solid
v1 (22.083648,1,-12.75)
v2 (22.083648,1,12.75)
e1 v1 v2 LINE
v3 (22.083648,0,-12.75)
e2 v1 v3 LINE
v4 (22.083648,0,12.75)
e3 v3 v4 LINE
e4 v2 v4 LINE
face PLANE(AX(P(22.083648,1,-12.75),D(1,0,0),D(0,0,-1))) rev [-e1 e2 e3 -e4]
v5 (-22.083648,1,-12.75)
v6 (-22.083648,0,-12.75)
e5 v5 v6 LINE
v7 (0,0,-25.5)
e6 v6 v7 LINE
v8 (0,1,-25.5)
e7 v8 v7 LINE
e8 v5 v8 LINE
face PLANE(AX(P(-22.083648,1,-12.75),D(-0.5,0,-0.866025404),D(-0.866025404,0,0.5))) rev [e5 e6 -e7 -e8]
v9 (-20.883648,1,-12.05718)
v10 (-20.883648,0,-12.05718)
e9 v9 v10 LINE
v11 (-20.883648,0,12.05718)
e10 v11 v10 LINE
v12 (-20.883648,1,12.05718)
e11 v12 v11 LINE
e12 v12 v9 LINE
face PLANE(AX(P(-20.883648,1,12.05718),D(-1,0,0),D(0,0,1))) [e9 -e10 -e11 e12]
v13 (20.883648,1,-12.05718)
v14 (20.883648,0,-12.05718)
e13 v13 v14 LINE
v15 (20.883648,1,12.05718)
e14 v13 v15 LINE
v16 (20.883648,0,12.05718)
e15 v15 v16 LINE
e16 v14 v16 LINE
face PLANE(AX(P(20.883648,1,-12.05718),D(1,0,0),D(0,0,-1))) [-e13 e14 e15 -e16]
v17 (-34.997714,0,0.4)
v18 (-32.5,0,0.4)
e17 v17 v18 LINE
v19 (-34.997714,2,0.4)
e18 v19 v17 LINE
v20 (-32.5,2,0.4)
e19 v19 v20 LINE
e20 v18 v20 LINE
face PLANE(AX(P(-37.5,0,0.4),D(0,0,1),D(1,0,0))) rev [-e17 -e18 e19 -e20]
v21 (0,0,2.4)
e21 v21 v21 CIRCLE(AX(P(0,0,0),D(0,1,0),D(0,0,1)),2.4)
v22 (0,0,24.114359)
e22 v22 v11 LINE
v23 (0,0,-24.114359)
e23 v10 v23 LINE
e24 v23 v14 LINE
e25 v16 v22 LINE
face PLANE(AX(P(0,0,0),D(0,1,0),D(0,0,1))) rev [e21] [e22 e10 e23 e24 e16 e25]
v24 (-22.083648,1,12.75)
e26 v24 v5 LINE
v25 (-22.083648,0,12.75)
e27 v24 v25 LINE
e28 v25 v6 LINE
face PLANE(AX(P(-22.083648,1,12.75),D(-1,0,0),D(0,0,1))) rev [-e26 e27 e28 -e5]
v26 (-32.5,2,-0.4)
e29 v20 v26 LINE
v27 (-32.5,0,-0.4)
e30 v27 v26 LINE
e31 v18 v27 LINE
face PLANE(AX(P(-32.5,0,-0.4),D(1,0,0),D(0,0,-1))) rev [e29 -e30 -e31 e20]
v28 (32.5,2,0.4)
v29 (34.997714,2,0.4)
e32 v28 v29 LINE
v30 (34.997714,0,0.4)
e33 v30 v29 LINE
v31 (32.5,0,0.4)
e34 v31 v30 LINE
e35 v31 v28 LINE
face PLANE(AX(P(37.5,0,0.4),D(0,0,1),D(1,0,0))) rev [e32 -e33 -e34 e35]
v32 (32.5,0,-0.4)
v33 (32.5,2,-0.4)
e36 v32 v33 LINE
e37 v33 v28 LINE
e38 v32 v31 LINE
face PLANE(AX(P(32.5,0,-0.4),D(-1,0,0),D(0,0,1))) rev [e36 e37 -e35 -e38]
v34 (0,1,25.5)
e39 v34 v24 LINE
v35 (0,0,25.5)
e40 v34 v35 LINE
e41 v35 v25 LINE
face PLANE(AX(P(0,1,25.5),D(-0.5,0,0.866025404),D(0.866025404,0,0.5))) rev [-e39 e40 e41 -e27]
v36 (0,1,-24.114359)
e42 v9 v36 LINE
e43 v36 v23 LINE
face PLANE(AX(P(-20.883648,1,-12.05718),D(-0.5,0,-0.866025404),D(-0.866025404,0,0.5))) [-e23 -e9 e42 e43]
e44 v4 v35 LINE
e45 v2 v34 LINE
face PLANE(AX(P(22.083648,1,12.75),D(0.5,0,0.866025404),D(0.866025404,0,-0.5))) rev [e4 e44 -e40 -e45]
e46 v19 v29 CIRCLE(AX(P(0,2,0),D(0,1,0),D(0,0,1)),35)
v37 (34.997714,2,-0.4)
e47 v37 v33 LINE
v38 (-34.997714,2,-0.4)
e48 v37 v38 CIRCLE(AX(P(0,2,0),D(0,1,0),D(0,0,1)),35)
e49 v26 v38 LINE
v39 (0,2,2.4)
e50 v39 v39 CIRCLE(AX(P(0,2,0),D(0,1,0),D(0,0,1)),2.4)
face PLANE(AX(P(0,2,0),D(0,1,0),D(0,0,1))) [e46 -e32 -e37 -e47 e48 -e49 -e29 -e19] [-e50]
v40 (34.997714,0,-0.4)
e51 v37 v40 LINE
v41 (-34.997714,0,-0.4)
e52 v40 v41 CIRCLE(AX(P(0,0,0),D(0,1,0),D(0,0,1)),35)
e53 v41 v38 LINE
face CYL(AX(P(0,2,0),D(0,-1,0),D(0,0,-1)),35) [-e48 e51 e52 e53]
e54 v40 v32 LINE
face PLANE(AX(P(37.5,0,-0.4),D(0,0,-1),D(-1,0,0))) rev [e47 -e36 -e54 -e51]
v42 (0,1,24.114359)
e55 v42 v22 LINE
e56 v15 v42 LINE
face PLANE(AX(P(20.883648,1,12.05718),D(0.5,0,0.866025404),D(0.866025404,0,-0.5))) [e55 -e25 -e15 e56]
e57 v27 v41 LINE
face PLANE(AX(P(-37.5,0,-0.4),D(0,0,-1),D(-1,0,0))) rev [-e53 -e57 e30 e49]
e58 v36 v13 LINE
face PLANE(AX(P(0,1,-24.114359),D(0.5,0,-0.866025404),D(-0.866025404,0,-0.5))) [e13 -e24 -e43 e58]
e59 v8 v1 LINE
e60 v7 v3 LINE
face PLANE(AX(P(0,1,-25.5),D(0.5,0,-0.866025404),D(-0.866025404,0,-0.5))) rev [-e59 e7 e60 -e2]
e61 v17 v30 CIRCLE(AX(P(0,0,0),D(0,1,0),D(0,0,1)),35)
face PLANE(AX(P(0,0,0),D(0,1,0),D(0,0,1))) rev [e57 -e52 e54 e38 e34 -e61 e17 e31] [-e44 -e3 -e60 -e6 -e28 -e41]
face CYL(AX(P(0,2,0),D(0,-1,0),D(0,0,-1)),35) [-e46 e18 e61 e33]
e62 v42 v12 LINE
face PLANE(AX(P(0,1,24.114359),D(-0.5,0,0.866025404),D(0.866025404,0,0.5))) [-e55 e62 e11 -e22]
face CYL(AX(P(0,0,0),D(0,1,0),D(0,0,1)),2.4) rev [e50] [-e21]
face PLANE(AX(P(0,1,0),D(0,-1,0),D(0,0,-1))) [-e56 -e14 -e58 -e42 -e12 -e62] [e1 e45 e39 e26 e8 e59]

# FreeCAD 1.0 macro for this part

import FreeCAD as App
import Part
import Sketcher

V = App.Vector
Q = App.Units.Quantity

doc = App.newDocument("Part")
body = doc.addObject("PartDesign::Body", "Body")

# Sketch on XZ plane
sketch1 = body.newObject("Sketcher::SketchObject", "Sketch")
sketch1.AttachmentSupport = (doc.getObject("XZ_Plane"), [""])
sketch1.MapMode = "FlatFace"
sketch1.addGeometry(Part.Circle(V(0, 0, 0), V(0, 0, 1), 35), False)
sketch1.addConstraint(Sketcher.Constraint("Coincident", 0, 3, -1, 1))
sketch1.addConstraint(Sketcher.Constraint("Diameter", 0, 70.0))
pad1 = body.newObject("PartDesign::Pad", "Pad")
pad1.Profile = sketch1
pad1.Length = 2
pad1.Reversed = True

# Sketch on XZ plane
sketch2 = body.newObject("Sketcher::SketchObject", "Sketch001")
sketch2.AttachmentSupport = (doc.getObject("XZ_Plane"), [""])
sketch2.MapMode = "FlatFace"
sketch2.AttachmentOffset = App.Placement(V(0, 0, -2), App.Rotation())
sketch2.addGeometry(Part.LineSegment(V(-37.5, -0.4, 0), V(-37.5, 0.4, 0)), False)
sketch2.addGeometry(Part.LineSegment(V(-37.5, 0.4, 0), V(-32.5, 0.4, 0)), False)
sketch2.addGeometry(Part.LineSegment(V(-32.5, 0.4, 0), V(-32.5, -0.4, 0)), False)
sketch2.addGeometry(Part.LineSegment(V(-32.5, -0.4, 0), V(-37.5, -0.4, 0)), False)
sketch2.addGeometry(Part.LineSegment(V(32.5, -0.4, 0), V(32.5, 0.4, 0)), False)
sketch2.addGeometry(Part.LineSegment(V(32.5, 0.4, 0), V(37.5, 0.4, 0)), False)
sketch2.addGeometry(Part.LineSegment(V(37.5, 0.4, 0), V(37.5, -0.4, 0)), False)
sketch2.addGeometry(Part.LineSegment(V(37.5, -0.4, 0), V(32.5, -0.4, 0)), False)
sketch2.addConstraint(Sketcher.Constraint("Coincident", 0, 2, 1, 1))
sketch2.addConstraint(Sketcher.Constraint("Coincident", 1, 2, 2, 1))
sketch2.addConstraint(Sketcher.Constraint("Coincident", 2, 2, 3, 1))
sketch2.addConstraint(Sketcher.Constraint("Coincident", 3, 2, 0, 1))
sketch2.addConstraint(Sketcher.Constraint("Coincident", 4, 2, 5, 1))
sketch2.addConstraint(Sketcher.Constraint("Coincident", 5, 2, 6, 1))
sketch2.addConstraint(Sketcher.Constraint("Coincident", 6, 2, 7, 1))
sketch2.addConstraint(Sketcher.Constraint("Coincident", 7, 2, 4, 1))
sketch2.addConstraint(Sketcher.Constraint("Vertical", 0))
sketch2.addConstraint(Sketcher.Constraint("Horizontal", 1))
sketch2.addConstraint(Sketcher.Constraint("Vertical", 2))
sketch2.addConstraint(Sketcher.Constraint("Horizontal", 3))
sketch2.addConstraint(Sketcher.Constraint("Vertical", 4))
sketch2.addConstraint(Sketcher.Constraint("Horizontal", 5))
sketch2.addConstraint(Sketcher.Constraint("Vertical", 6))
sketch2.addConstraint(Sketcher.Constraint("Horizontal", 7))
sketch2.addConstraint(Sketcher.Constraint("Symmetric", 2, 2, 4, 2, -1, 1))
sketch2.addConstraint(Sketcher.Constraint("Symmetric", 0, 2, 6, 2, -1, 1))
sketch2.addConstraint(Sketcher.Constraint("Horizontal", 1, 2, 4, 2))
sketch2.addConstraint(Sketcher.Constraint("DistanceX", 1, 1, 1, 2, 5.0))
sketch2.addConstraint(Sketcher.Constraint("DistanceY", 0, 1, 0, 2, 0.8))
sketch2.addConstraint(Sketcher.Constraint("DistanceX", 1, 2, 4, 2, 65.0))
pocket1 = body.newObject("PartDesign::Pocket", "Pocket")
pocket1.Profile = sketch2
pocket1.Type = "ThroughAll"
pocket1.Reversed = True

# Sketch on XZ plane
sketch3 = body.newObject("Sketcher::SketchObject", "Sketch002")
sketch3.AttachmentSupport = (doc.getObject("XZ_Plane"), [""])
sketch3.MapMode = "FlatFace"
sketch3.AttachmentOffset = App.Placement(V(0, 0, -2), App.Rotation())
sketch3.addGeometry(Part.Circle(V(0, 0, 0), V(0, 0, 1), 2.4), False)
sketch3.addConstraint(Sketcher.Constraint("Coincident", 0, 3, -1, 1))
sketch3.addConstraint(Sketcher.Constraint("Diameter", 0, 4.8))
pocket2 = body.newObject("PartDesign::Pocket", "Pocket001")
pocket2.Profile = sketch3
pocket2.Type = "ThroughAll"
pocket2.Reversed = True

# Sketch on XZ plane
sketch4 = body.newObject("Sketcher::SketchObject", "Sketch003")
sketch4.AttachmentSupport = (doc.getObject("XZ_Plane"), [""])
sketch4.MapMode = "FlatFace"
sketch4.addGeometry(Part.LineSegment(V(-22.083648, 12.75, 0), V(-22.083648, -12.75, 0)), False)
sketch4.addGeometry(Part.LineSegment(V(-22.083648, -12.75, 0), V(0, -25.5, 0)), False)
sketch4.addGeometry(Part.LineSegment(V(0, -25.5, 0), V(22.083648, -12.75, 0)), False)
sketch4.addGeometry(Part.LineSegment(V(22.083648, -12.75, 0), V(22.083648, 12.75, 0)), False)
sketch4.addGeometry(Part.LineSegment(V(22.083648, 12.75, 0), V(0, 25.5, 0)), False)
sketch4.addGeometry(Part.LineSegment(V(0, 25.5, 0), V(-22.083648, 12.75, 0)), False)
sketch4.addGeometry(Part.LineSegment(V(-20.883648, -12.05718, 0), V(-20.883648, 12.05718, 0)), False)
sketch4.addGeometry(Part.LineSegment(V(-20.883648, 12.05718, 0), V(0, 24.114359, 0)), False)
sketch4.addGeometry(Part.LineSegment(V(0, 24.114359, 0), V(20.883648, 12.05718, 0)), False)
sketch4.addGeometry(Part.LineSegment(V(20.883648, 12.05718, 0), V(20.883648, -12.05718, 0)), False)
sketch4.addGeometry(Part.LineSegment(V(20.883648, -12.05718, 0), V(0, -24.114359, 0)), False)
sketch4.addGeometry(Part.LineSegment(V(0, -24.114359, 0), V(-20.883648, -12.05718, 0)), False)
sketch4.addConstraint(Sketcher.Constraint("Coincident", 0, 2, 1, 1))
sketch4.addConstraint(Sketcher.Constraint("Coincident", 1, 2, 2, 1))
sketch4.addConstraint(Sketcher.Constraint("Coincident", 2, 2, 3, 1))
sketch4.addConstraint(Sketcher.Constraint("Coincident", 3, 2, 4, 1))
sketch4.addConstraint(Sketcher.Constraint("Coincident", 4, 2, 5, 1))
sketch4.addConstraint(Sketcher.Constraint("Coincident", 5, 2, 0, 1))
sketch4.addConstraint(Sketcher.Constraint("Coincident", 6, 2, 7, 1))
sketch4.addConstraint(Sketcher.Constraint("Coincident", 7, 2, 8, 1))
sketch4.addConstraint(Sketcher.Constraint("Coincident", 8, 2, 9, 1))
sketch4.addConstraint(Sketcher.Constraint("Coincident", 9, 2, 10, 1))
sketch4.addConstraint(Sketcher.Constraint("Coincident", 10, 2, 11, 1))
sketch4.addConstraint(Sketcher.Constraint("Coincident", 11, 2, 6, 1))
sketch4.addConstraint(Sketcher.Constraint("Vertical", 0))
sketch4.addConstraint(Sketcher.Constraint("Vertical", 3))
sketch4.addConstraint(Sketcher.Constraint("Vertical", 6))
sketch4.addConstraint(Sketcher.Constraint("Vertical", 9))
sketch4.addConstraint(Sketcher.Constraint("Symmetric", 0, 2, 3, 2, -1, 1))
sketch4.addConstraint(Sketcher.Constraint("Symmetric", 1, 2, 4, 2, -1, 1))
sketch4.addConstraint(Sketcher.Constraint("Symmetric", 6, 2, 9, 2, -1, 1))
sketch4.addConstraint(Sketcher.Constraint("Symmetric", 7, 2, 10, 2, -1, 1))
sketch4.addConstraint(Sketcher.Constraint("PointOnObject", 1, 2, -2))
sketch4.addConstraint(Sketcher.Constraint("PointOnObject", 7, 2, -2))
sketch4.addConstraint(Sketcher.Constraint("Parallel", 2, 5))
sketch4.addConstraint(Sketcher.Constraint("Parallel", 5, 7))
sketch4.addConstraint(Sketcher.Constraint("Parallel", 4, 8))
sketch4.addConstraint(Sketcher.Constraint("Parallel", 8, 11))
sketch4.addConstraint(Sketcher.Constraint("Horizontal", 0, 2, 2, 2))
sketch4.addConstraint(Sketcher.Constraint("Angle", 1, Q("-30 deg")))
sketch4.addConstraint(Sketcher.Constraint("DistanceY", 0, 2, 0, 1, 25.5))
sketch4.addConstraint(Sketcher.Constraint("DistanceY", 1, 2, 4, 2, 51.0))
sketch4.addConstraint(Sketcher.Constraint("DistanceX", 5, 2, 6, 2, 1.2))
sketch4.addConstraint(Sketcher.Constraint("DistanceY", 6, 1, 6, 2, 24.114359))
pocket3 = body.newObject("PartDesign::Pocket", "Pocket002")
pocket3.Profile = sketch4
pocket3.Length = 1

doc.recompute()
